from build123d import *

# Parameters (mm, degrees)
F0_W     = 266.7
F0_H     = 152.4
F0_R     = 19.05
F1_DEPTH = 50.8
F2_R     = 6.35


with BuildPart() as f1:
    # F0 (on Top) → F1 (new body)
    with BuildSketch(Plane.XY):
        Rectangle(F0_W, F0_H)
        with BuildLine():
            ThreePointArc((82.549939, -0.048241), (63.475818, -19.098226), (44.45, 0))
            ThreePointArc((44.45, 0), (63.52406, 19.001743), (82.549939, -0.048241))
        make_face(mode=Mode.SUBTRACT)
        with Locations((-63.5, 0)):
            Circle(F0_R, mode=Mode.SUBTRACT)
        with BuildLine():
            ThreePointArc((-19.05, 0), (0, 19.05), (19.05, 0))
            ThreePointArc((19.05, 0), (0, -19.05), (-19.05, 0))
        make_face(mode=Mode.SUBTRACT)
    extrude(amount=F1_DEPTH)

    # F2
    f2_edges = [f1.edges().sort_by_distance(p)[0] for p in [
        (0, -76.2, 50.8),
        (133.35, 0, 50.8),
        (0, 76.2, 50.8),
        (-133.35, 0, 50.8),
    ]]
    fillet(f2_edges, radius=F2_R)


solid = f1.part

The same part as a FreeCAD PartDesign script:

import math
import FreeCAD as App
import Part
import Sketcher

V = App.Vector
Q = App.Units.Quantity


def edges_at(feature, points):
    """Names of the edges that pass closest to the given points."""
    edges = feature.Shape.Edges
    near = lambda p: min(range(len(edges)), key=lambda i: edges[i].distToShape(Part.Vertex(*p))[0])
    return sorted({f"Edge{near(p) + 1}" for p in points})


def add_polygon(sketch, points):
    """Adds a closed chain of lines whose ends are joined by coincident constraints."""
    first, n = sketch.GeometryCount, len(points)
    for a, b in zip(points, points[1:] + points[:1]):
        sketch.addGeometry(Part.LineSegment(App.Vector(*a, 0), App.Vector(*b, 0)), False)
    for i in range(n):
        sketch.addConstraint(Sketcher.Constraint("Coincident", first + i, 2, first + (i + 1) % n, 1))

doc = App.newDocument("Part")
body = doc.addObject("PartDesign::Body", "Body")

# Sketch on XY plane
sketch1 = body.newObject("Sketcher::SketchObject", "Sketch")
sketch1.AttachmentSupport = (doc.getObject("XY_Plane"), [""])
sketch1.MapMode = "FlatFace"
add_polygon(sketch1, [(-133, 76), (-133, -76), (133, -76), (133, 76)])  # lines 0-3
sketch1.addGeometry(Part.ArcOfCircle(Part.Circle(V(63, 0, 0), V(0, 0, 1), 19), math.radians(0), math.radians(180)), False)  # 4
sketch1.addGeometry(Part.ArcOfCircle(Part.Circle(V(63, 0, 0), V(0, 0, 1), 19), math.radians(180), math.radians(360)), False)  # 5
sketch1.addGeometry(Part.Circle(V(-64, 0, 0), V(0, 0, 1), 19), False)  # 6
sketch1.addGeometry(Part.Circle(V(0, 0, 0), V(0, 0, 1), 19), False)  # 7
sketch1.addConstraint([
    Sketcher.Constraint("Tangent", 4, 1, 5, 2),
    Sketcher.Constraint("Coincident", 5, 1, 4, 2),
    Sketcher.Constraint("Vertical", 0),
    Sketcher.Constraint("Horizontal", 1),
    Sketcher.Constraint("Vertical", 2),
    Sketcher.Constraint("Horizontal", 3),
    Sketcher.Constraint("Coincident", 7, 3, -1, 1),
    Sketcher.Constraint("Equal", 5, 6),
    Sketcher.Constraint("Equal", 6, 7),
    Sketcher.Constraint("Symmetric", 0, 2, 2, 2, -1, 1),
    Sketcher.Constraint("PointOnObject", 6, 3, -1),
    Sketcher.Constraint("PointOnObject", 5, 1, -1),
    Sketcher.Constraint("Horizontal", 5, 3, 4, 1),
    Sketcher.Constraint("Diameter", 6, Q("1.5 in")),
    Sketcher.Constraint("DistanceY", 0, 2, 0, 1, Q("6 in")),
    Sketcher.Constraint("DistanceX", 1, 1, 1, 2, Q("10.5 in")),
    Sketcher.Constraint("DistanceX", 6, 3, -1, 1, Q("2.5 in")),
    Sketcher.Constraint("DistanceX", -1, 1, 5, 1, Q("1.75 in")),
    Sketcher.Constraint("DistanceY", 4, 3, -1, 1, Q("0.048242 mm")),
])
pad1 = body.newObject("PartDesign::Pad", "Pad")
pad1.Profile = sketch1
pad1.Length = Q("2 in")
doc.recompute()

fillet = body.newObject("PartDesign::Fillet", "Fillet")
fillet.Base = (pad1, edges_at(pad1, [
    (0, -76.2, 50.8),
    (133.35, 0, 50.8),
    (0, 76.2, 50.8),
    (-133.35, 0, 50.8),
]))
fillet.Radius = Q("0.25 in")

doc.recompute()
